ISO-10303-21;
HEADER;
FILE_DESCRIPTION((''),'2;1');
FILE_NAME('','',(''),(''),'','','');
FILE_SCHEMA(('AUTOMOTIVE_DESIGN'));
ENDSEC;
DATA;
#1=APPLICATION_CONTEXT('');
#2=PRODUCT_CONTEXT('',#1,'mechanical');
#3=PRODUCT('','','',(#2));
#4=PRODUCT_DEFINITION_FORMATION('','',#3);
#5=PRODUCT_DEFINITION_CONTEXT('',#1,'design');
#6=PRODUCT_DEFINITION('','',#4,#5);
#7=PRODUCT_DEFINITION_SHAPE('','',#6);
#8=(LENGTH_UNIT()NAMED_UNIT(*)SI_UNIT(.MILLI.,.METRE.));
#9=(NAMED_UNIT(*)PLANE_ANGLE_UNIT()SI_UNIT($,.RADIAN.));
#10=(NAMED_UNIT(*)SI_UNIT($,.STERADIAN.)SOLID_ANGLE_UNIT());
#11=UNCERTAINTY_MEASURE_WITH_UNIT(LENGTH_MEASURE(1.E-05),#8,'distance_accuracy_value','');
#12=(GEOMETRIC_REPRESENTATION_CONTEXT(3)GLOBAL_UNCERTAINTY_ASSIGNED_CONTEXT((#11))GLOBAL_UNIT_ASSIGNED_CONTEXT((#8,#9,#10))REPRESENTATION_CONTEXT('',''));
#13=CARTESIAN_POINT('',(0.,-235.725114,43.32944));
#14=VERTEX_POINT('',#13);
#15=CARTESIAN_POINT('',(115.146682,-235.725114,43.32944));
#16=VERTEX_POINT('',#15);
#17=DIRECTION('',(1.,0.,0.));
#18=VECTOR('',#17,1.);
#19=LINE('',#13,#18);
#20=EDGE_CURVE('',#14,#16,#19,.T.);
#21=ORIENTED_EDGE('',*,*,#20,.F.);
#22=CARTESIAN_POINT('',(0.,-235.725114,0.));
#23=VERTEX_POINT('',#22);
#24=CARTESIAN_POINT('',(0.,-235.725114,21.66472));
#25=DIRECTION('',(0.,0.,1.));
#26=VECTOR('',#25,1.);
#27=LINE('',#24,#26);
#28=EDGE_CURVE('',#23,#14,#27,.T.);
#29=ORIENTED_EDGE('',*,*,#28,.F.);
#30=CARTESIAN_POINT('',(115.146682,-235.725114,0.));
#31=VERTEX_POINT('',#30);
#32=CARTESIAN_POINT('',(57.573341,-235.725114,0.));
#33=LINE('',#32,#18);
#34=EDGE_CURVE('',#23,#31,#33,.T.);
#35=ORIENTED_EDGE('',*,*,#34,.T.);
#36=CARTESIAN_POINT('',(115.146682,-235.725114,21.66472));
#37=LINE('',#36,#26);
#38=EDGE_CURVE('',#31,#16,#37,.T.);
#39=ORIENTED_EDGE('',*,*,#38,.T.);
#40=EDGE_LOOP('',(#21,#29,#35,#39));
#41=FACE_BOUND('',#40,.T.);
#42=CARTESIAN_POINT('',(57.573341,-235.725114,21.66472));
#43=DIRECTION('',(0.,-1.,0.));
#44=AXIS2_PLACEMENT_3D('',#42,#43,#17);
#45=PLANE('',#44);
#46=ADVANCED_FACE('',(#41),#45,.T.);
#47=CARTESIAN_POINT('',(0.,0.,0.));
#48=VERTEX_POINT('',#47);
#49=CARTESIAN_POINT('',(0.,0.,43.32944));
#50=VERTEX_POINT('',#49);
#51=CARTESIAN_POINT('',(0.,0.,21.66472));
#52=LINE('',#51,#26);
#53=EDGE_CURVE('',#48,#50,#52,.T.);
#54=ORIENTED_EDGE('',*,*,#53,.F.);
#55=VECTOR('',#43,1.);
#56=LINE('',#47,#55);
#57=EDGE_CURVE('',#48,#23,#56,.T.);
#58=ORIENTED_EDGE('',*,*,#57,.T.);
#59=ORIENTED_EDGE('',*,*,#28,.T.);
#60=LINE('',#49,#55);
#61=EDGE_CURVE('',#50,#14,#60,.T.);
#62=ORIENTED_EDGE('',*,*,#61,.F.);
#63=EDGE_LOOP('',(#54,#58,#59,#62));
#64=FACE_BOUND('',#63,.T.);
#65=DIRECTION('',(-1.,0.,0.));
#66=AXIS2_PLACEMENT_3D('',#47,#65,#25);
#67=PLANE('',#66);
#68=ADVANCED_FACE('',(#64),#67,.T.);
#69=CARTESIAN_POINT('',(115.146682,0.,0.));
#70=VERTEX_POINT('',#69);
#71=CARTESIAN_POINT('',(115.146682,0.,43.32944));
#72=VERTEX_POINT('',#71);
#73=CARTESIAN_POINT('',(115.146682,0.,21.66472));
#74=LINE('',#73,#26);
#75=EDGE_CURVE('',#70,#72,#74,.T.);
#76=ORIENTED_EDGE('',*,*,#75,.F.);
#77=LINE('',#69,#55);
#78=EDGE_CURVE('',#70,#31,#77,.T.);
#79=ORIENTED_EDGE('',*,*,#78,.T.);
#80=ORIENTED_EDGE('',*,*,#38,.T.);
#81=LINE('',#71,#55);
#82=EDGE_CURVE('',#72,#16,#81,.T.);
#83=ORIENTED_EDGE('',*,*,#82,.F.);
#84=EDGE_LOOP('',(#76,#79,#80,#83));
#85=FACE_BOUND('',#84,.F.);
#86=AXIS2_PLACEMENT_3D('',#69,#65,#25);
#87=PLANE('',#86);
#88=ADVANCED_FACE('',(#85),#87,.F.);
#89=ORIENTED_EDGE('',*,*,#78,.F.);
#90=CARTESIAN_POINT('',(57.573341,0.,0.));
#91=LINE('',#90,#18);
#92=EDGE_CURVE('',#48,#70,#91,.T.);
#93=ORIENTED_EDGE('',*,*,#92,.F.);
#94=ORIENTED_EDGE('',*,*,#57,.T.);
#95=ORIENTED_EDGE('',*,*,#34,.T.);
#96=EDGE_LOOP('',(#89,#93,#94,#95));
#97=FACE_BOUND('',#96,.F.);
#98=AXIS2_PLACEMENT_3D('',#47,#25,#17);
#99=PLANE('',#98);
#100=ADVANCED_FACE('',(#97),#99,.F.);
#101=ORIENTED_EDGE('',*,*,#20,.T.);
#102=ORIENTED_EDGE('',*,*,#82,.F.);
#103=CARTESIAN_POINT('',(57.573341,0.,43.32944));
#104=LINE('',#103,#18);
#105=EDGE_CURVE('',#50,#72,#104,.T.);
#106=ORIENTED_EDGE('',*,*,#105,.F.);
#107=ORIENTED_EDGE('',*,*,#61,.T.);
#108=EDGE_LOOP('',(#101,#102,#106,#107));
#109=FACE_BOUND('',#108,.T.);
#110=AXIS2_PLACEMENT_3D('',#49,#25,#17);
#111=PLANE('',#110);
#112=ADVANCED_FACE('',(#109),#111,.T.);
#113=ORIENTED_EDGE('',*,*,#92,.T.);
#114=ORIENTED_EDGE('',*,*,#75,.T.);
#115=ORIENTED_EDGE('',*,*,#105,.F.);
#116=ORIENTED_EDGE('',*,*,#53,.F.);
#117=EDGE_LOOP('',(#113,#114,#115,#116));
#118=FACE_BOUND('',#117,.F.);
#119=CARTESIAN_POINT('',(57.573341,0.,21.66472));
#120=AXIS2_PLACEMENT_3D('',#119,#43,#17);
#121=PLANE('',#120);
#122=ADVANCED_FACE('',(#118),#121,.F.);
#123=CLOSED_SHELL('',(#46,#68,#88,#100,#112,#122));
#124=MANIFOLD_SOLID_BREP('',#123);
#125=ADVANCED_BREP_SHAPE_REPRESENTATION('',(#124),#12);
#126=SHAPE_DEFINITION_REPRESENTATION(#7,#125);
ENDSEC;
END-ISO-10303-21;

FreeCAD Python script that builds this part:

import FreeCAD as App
import Part
import Sketcher
from FreeCAD import Vector

doc = App.newDocument("Part")
params = doc.addObject("Spreadsheet::Sheet", "Params")
for row, (alias, value) in enumerate([
    ("pad1_length", "235.725114 mm"),
    ("pad2_length", "128.970386 mm"),
], start=1):
    params.set(f"A{row}", alias)
    params.set(f"B{row}", "=" + value)
    params.setAlias(f"B{row}", alias)

body = doc.addObject("PartDesign::Body", "Body")

# Sketch on XZ plane
sketch1 = body.newObject("Sketcher::SketchObject", "Sketch")
sketch1.AttachmentSupport = (doc.getObject("XZ_Plane"), [""])
sketch1.MapMode = "FlatFace"
sketch1.addGeometry([
    Part.LineSegment(Vector(0, 43, 0), Vector(0, 0, 0)),
    Part.LineSegment(Vector(0, 0, 0), Vector(115, 0, 0)),
    Part.LineSegment(Vector(115, 0, 0), Vector(115, 43, 0)),
    Part.LineSegment(Vector(115, 43, 0), Vector(0, 43, 0)),
], False)
sketch1.addConstraint([
    Sketcher.Constraint("Coincident", 0, 2, 1, 1),
    Sketcher.Constraint("Coincident", 1, 2, 2, 1),
    Sketcher.Constraint("Coincident", 2, 2, 3, 1),
    Sketcher.Constraint("Coincident", 3, 2, 0, 1),
    Sketcher.Constraint("Vertical", 0),
    Sketcher.Constraint("Horizontal", 1),
    Sketcher.Constraint("Vertical", 2),
    Sketcher.Constraint("Horizontal", 3),
    Sketcher.Constraint("Coincident", 0, 2, -1, 1),
    Sketcher.Constraint("DistanceX", 1, 1, 1, 2, 115.146682),
    Sketcher.Constraint("DistanceY", 0, 2, 0, 1, 43.32944),
])
pad1 = body.newObject("PartDesign::Pad", "Pad")
pad1.Profile = sketch1
pad1.setExpression("Length", "Params.pad1_length")

# Sketch on XZ plane
sketch2 = body.newObject("Sketcher::SketchObject", "Sketch001")
sketch2.AttachmentSupport = (doc.getObject("XZ_Plane"), [""])
sketch2.MapMode = "FlatFace"
sketch2.AttachmentOffset = App.Placement(Vector(0, 0, 235.725114), App.Rotation())
sketch2.addGeometry([
    Part.LineSegment(Vector(8, 43, 0), Vector(8, 8, 0)),
    Part.LineSegment(Vector(8, 8, 0), Vector(104, 8, 0)),
    Part.LineSegment(Vector(104, 8, 0), Vector(104, 43, 0)),
    Part.LineSegment(Vector(104, 43, 0), Vector(8, 43, 0)),
], False)
sketch2.addConstraint([
    Sketcher.Constraint("Coincident", 0, 2, 1, 1),
    Sketcher.Constraint("Coincident", 1, 2, 2, 1),
    Sketcher.Constraint("Coincident", 2, 2, 3, 1),
    Sketcher.Constraint("Coincident", 3, 2, 0, 1),
    Sketcher.Constraint("Vertical", 0),
    Sketcher.Constraint("Horizontal", 1),
    Sketcher.Constraint("Vertical", 2),
    Sketcher.Constraint("Horizontal", 3),
    Sketcher.Constraint("DistanceX", 1, 1, 1, 2, 95.756106),
    Sketcher.Constraint("DistanceY", 0, 2, 0, 1, 34.991488),
    Sketcher.Constraint("DistanceX", -1, 1, 0, 2, 8.39667),
    Sketcher.Constraint("DistanceY", -1, 1, 2, 2, 43.32944),
])
pad2 = body.newObject("PartDesign::Pad", "Pad001")
pad2.Profile = sketch2
pad2.setExpression("Length", "Params.pad2_length")
pad2.Reversed = True

doc.recompute()
